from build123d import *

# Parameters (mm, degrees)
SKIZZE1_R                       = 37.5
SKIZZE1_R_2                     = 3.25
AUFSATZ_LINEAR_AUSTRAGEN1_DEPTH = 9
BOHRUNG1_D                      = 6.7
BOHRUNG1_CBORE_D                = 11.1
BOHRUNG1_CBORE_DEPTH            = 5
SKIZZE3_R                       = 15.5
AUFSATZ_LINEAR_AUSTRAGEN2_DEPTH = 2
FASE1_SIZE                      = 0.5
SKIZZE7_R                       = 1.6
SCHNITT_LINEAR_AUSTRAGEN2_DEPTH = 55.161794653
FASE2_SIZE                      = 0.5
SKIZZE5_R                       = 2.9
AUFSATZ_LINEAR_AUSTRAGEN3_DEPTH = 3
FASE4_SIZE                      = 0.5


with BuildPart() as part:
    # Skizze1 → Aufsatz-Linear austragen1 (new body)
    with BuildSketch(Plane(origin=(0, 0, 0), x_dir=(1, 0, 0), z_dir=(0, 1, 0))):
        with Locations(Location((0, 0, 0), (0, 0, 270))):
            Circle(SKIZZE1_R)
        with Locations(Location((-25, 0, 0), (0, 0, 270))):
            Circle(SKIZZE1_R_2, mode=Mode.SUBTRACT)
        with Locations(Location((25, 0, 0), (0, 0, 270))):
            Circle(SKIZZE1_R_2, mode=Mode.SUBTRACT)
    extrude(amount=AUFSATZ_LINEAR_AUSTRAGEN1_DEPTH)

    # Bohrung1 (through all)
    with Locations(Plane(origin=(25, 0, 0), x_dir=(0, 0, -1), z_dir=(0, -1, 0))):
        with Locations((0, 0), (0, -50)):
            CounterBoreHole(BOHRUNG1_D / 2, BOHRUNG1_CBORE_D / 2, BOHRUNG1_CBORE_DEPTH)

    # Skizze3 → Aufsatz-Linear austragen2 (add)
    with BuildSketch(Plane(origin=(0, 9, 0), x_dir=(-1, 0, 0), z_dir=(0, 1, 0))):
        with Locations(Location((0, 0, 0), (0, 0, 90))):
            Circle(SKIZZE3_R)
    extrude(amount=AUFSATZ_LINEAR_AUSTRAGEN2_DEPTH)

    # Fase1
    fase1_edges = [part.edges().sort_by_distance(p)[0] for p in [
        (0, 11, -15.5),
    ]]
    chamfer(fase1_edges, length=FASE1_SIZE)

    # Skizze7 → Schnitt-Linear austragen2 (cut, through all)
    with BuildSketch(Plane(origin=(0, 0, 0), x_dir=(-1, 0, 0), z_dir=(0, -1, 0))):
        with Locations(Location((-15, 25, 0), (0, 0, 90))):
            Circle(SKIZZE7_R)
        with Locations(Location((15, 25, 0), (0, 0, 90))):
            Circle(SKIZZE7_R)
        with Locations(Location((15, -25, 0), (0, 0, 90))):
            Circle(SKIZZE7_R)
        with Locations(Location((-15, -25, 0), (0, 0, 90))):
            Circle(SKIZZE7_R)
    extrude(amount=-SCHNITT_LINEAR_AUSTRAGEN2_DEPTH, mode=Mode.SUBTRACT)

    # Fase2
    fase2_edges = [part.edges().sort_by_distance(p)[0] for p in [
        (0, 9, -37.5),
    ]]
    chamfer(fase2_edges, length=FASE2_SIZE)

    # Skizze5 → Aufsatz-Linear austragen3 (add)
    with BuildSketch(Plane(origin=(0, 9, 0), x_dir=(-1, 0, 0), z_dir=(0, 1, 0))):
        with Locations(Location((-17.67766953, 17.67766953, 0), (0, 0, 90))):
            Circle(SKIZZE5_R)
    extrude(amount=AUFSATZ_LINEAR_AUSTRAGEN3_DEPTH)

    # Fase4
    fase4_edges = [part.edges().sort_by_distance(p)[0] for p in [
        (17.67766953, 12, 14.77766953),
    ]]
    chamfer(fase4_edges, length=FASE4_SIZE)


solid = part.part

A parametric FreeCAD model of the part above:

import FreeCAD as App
import Part
import Sketcher


def edges_at(feature, points):
    """Names of the edges that pass closest to the given points."""
    edges = feature.Shape.Edges
    near = lambda p: min(range(len(edges)), key=lambda i: edges[i].distToShape(Part.Vertex(*p))[0])
    return sorted({f"Edge{near(p) + 1}" for p in points})

doc = App.newDocument("Part")
body = doc.addObject("PartDesign::Body", "Body")

sketch1 = doc.addObject("Sketcher::SketchObject", "Sketch")
body.addObject(sketch1)
sketch1.AttachmentSupport = (doc.XZ_Plane, [""])
sketch1.MapMode = "FlatFace"
sketch1.addGeometry([
    Part.Circle(App.Vector(0, 0, 0), App.Vector(0, 0, 1), 37.5),
    Part.Circle(App.Vector(-25, 0, 0), App.Vector(0, 0, 1), 3.2),
    Part.Circle(App.Vector(25, 0, 0), App.Vector(0, 0, 1), 3.2),
], False)
sketch1.addConstraint([
    Sketcher.Constraint("Coincident", 0, 3, -1, 1),
    Sketcher.Constraint("Equal", 1, 2),
    Sketcher.Constraint("Symmetric", 1, 3, 2, 3, -1, 1),
    Sketcher.Constraint("PointOnObject", 1, 3, -1),
    Sketcher.Constraint("Diameter", 0, 75.0),
    Sketcher.Constraint("Diameter", 1, 6.5),
    Sketcher.Constraint("DistanceX", 1, 3, -1, 1, 25.0),
])
pad1 = doc.addObject("PartDesign::Pad", "Pad")
body.addObject(pad1)
pad1.Profile = sketch1
pad1.Length = 9
pad1.Reversed = True

sketch2 = doc.addObject("Sketcher::SketchObject", "Sketch001")
body.addObject(sketch2)
sketch2.AttachmentSupport = (doc.XZ_Plane, [""])
sketch2.MapMode = "FlatFace"
sketch2.addGeometry([
    Part.Circle(App.Vector(25, 0, 0), App.Vector(0, 0, 1), 3.4),
    Part.Circle(App.Vector(-25, 0, 0), App.Vector(0, 0, 1), 3.4),
], False)
sketch2.addConstraint([
    Sketcher.Constraint("Equal", 0, 1),
    Sketcher.Constraint("Symmetric", 0, 3, 1, 3, -1, 1),
    Sketcher.Constraint("PointOnObject", 0, 3, -1),
    Sketcher.Constraint("Diameter", 0, 6.7),
    Sketcher.Constraint("DistanceX", -1, 1, 0, 3, 25.0),
])
doc.recompute()
hole = doc.addObject("PartDesign::Hole", "Hole")
body.addObject(hole)
hole.Profile = sketch2
hole.ThreadType = "None"
hole.Diameter = 6.7
hole.DepthType = "ThroughAll"
hole.HoleCutType = "Counterbore"
hole.HoleCutDiameter = 11.1
hole.HoleCutDepth = 5

sketch3 = doc.addObject("Sketcher::SketchObject", "Sketch002")
body.addObject(sketch3)
sketch3.AttachmentSupport = (doc.XZ_Plane, [""])
sketch3.MapMode = "FlatFace"
sketch3.AttachmentOffset = App.Placement(App.Vector(0, 0, -9), App.Rotation())
sketch3.addGeometry(Part.Circle(App.Vector(0, 0, 0), App.Vector(0, 0, 1), 16), False)
sketch3.addConstraint([
    Sketcher.Constraint("Coincident", 0, 3, -1, 1),
    Sketcher.Constraint("Diameter", 0, 31.0),
])
pad2 = doc.addObject("PartDesign::Pad", "Pad001")
body.addObject(pad2)
pad2.Profile = sketch3
pad2.Length = 2
pad2.Reversed = True
doc.recompute()

chamfer = doc.addObject("PartDesign::Chamfer", "Chamfer")
body.addObject(chamfer)
chamfer.Base = (pad2, edges_at(pad2, [(0, 11, -15.5)]))
chamfer.Size = 0.5

sketch4 = doc.addObject("Sketcher::SketchObject", "Sketch003")
body.addObject(sketch4)
sketch4.AttachmentSupport = (doc.XZ_Plane, [""])
sketch4.MapMode = "FlatFace"
sketch4.addGeometry([
    Part.Circle(App.Vector(15, -25, 0), App.Vector(0, 0, 1), 1.6),
    Part.Circle(App.Vector(-15, -25, 0), App.Vector(0, 0, 1), 1.6),
    Part.Circle(App.Vector(-15, 25, 0), App.Vector(0, 0, 1), 1.6),
    Part.Circle(App.Vector(15, 25, 0), App.Vector(0, 0, 1), 1.6),
], False)
sketch4.addConstraint([
    Sketcher.Constraint("Equal", 0, 1),
    Sketcher.Constraint("Equal", 1, 2),
    Sketcher.Constraint("Equal", 2, 3),
    Sketcher.Constraint("Symmetric", 0, 3, 2, 3, -1, 1),
    Sketcher.Constraint("Symmetric", 1, 3, 3, 3, -1, 1),
    Sketcher.Constraint("Symmetric", 0, 3, 1, 3, -2),
    Sketcher.Constraint("Diameter", 0, 3.2),
    Sketcher.Constraint("DistanceX", -1, 1, 0, 3, 15.0),
    Sketcher.Constraint("DistanceY", 0, 3, -1, 1, 25.0),
])
pocket1 = doc.addObject("PartDesign::Pocket", "Pocket")
body.addObject(pocket1)
pocket1.Profile = sketch4
pocket1.Type = "ThroughAll"
doc.recompute()

chamfer2 = doc.addObject("PartDesign::Chamfer", "Chamfer001")
body.addObject(chamfer2)
chamfer2.Base = (pocket1, edges_at(pocket1, [(0, 9, -37.5)]))
chamfer2.Size = 0.5

sketch5 = doc.addObject("Sketcher::SketchObject", "Sketch004")
body.addObject(sketch5)
sketch5.AttachmentSupport = (doc.XZ_Plane, [""])
sketch5.MapMode = "FlatFace"
sketch5.AttachmentOffset = App.Placement(App.Vector(0, 0, -9), App.Rotation())
sketch5.addGeometry(Part.Circle(App.Vector(17.7, 17.7, 0), App.Vector(0, 0, 1), 2.9), False)
sketch5.addConstraint([
    Sketcher.Constraint("Diameter", 0, 5.8),
    Sketcher.Constraint("DistanceX", -1, 1, 0, 3, 17.67767),
    Sketcher.Constraint("DistanceY", -1, 1, 0, 3, 17.67767),
])
pad3 = doc.addObject("PartDesign::Pad", "Pad002")
body.addObject(pad3)
pad3.Profile = sketch5
pad3.Length = 3
pad3.Reversed = True
doc.recompute()

chamfer3 = doc.addObject("PartDesign::Chamfer", "Chamfer002")
body.addObject(chamfer3)
chamfer3.Base = (pad3, edges_at(pad3, [(17.678, 12, 14.778)]))
chamfer3.Size = 0.5

doc.recompute()
